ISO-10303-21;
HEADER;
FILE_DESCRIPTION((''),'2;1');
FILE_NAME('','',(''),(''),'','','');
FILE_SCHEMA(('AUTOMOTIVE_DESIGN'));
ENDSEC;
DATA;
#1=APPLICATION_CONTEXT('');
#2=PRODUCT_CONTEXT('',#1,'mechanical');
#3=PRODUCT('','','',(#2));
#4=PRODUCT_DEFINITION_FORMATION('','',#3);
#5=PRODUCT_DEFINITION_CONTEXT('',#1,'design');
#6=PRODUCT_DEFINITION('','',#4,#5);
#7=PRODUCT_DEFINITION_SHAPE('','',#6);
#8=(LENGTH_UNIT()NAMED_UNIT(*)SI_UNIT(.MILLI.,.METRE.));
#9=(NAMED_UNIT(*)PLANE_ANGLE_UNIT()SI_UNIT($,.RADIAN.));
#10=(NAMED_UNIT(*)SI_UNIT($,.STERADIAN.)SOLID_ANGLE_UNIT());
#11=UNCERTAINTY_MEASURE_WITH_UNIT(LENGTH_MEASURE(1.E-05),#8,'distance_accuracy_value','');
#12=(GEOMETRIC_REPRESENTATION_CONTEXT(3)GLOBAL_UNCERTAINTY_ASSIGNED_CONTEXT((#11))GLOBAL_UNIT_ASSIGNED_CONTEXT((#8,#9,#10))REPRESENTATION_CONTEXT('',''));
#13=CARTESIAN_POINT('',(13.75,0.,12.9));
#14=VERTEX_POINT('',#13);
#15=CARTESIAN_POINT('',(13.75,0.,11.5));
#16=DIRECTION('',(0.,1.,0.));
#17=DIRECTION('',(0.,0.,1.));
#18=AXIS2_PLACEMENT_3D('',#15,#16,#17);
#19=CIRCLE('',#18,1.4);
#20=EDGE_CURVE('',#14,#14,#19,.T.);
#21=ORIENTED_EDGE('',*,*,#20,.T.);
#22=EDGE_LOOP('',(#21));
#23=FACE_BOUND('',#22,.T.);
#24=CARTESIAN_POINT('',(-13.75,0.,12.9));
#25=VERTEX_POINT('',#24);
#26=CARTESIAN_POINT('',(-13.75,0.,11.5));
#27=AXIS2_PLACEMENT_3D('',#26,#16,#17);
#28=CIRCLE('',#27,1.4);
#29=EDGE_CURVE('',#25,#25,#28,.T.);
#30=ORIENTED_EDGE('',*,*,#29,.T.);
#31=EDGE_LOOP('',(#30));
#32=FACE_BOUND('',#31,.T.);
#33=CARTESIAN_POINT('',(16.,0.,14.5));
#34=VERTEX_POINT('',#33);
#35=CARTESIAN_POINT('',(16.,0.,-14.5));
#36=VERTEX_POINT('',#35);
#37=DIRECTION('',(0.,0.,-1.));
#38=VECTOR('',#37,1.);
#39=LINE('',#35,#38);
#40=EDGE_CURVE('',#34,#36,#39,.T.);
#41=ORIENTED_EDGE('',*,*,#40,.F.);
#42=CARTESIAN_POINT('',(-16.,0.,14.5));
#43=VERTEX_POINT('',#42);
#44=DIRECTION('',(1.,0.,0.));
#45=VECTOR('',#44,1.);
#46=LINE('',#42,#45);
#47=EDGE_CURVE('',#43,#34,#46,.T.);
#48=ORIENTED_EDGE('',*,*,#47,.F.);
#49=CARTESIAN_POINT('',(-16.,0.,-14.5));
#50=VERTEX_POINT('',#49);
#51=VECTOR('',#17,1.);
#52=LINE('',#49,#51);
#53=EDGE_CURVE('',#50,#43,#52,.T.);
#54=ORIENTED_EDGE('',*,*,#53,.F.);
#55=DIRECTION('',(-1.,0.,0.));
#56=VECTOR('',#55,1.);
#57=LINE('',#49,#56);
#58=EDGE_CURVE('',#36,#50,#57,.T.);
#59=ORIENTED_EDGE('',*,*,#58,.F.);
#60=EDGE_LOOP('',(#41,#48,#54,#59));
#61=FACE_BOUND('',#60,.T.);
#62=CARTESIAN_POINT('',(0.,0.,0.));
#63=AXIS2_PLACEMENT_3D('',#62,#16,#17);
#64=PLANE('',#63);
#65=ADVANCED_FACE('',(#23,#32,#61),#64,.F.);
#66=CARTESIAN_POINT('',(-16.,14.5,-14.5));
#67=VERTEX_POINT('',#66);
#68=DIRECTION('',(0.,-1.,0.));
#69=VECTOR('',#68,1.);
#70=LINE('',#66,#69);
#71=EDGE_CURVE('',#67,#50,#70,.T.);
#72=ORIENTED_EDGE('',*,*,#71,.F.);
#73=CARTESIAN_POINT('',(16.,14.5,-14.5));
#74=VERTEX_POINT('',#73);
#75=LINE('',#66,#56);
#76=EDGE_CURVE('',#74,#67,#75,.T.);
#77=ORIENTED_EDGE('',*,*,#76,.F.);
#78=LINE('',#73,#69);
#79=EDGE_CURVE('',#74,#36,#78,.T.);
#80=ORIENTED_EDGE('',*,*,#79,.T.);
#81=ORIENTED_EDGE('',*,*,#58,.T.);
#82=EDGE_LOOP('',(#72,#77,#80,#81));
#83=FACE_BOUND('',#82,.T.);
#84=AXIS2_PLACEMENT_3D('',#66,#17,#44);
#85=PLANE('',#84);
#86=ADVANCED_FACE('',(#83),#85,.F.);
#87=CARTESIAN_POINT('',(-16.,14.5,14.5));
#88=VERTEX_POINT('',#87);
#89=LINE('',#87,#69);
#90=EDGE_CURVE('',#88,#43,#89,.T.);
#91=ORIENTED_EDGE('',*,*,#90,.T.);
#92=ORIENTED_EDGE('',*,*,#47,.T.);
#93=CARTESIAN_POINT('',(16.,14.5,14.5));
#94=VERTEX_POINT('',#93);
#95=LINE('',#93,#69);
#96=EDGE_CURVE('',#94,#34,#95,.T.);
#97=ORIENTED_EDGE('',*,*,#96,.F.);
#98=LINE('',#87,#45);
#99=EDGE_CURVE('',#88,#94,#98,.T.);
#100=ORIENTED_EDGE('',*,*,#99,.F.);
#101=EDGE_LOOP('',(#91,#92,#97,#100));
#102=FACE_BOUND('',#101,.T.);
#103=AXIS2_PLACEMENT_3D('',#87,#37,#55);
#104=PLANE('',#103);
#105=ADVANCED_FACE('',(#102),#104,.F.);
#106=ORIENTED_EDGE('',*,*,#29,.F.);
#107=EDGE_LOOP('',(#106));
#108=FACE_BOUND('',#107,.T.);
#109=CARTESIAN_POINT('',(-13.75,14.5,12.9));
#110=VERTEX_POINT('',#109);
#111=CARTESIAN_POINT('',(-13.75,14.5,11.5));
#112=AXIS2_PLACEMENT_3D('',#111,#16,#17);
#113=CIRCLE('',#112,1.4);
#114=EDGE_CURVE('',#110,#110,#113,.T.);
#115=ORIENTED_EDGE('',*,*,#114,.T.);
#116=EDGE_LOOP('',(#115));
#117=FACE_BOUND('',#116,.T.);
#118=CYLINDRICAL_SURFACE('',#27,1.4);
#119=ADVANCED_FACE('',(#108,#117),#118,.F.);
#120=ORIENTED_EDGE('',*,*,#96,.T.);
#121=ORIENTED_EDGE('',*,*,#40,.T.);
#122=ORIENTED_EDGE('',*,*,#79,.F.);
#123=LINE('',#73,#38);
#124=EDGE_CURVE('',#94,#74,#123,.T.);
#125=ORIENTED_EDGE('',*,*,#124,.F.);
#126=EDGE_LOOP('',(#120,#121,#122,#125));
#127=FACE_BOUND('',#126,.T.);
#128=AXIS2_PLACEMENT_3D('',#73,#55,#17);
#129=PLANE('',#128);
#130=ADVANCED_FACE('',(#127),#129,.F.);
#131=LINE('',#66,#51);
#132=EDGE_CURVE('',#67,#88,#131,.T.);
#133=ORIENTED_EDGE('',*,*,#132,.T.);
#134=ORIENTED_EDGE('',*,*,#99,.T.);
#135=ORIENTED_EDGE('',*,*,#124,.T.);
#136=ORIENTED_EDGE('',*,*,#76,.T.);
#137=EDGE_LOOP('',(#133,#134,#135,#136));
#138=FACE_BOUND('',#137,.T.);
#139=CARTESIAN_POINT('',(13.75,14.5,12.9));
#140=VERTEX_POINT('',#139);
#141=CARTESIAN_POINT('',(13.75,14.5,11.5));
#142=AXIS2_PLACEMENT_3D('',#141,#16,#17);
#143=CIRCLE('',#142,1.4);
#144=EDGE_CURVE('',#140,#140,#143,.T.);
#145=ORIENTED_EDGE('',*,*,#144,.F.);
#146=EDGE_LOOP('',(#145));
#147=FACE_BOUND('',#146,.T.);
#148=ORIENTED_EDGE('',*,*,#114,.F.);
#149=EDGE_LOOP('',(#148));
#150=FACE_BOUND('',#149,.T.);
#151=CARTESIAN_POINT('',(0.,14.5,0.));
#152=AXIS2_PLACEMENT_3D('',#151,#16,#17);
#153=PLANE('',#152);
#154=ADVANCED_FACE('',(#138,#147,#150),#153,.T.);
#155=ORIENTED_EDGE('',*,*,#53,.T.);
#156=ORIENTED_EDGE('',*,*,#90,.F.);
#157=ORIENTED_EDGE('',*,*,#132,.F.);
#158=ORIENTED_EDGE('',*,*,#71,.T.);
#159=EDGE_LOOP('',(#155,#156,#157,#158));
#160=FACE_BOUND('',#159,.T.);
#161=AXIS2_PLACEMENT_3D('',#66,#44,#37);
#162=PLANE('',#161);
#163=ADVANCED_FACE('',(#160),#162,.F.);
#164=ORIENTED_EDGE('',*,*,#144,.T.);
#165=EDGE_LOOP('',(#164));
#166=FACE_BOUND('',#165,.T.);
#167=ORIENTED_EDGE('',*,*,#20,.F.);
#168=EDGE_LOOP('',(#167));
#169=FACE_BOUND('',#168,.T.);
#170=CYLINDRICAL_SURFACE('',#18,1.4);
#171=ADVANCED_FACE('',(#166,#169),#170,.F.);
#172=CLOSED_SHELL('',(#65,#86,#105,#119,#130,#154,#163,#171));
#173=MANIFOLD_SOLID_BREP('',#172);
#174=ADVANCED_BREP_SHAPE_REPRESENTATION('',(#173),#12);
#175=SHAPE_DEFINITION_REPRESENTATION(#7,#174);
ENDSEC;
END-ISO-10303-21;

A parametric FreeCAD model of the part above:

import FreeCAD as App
import Part
import Sketcher
from FreeCAD import Vector
Q = App.Units.Quantity


def add_polygon(sketch, points):
    """Adds a closed chain of lines whose ends are joined by coincident constraints."""
    first, n = sketch.GeometryCount, len(points)
    for a, b in zip(points, points[1:] + points[:1]):
        sketch.addGeometry(Part.LineSegment(App.Vector(*a, 0), App.Vector(*b, 0)), False)
    for i in range(n):
        sketch.addConstraint(Sketcher.Constraint("Coincident", first + i, 2, first + (i + 1) % n, 1))

doc = App.newDocument("Part")
body = doc.addObject("PartDesign::Body", "Body")

sketch1 = doc.addObject("Sketcher::SketchObject", "Sketch")
body.addObject(sketch1)
sketch1.AttachmentSupport = (doc.XZ_Plane, [""])
sketch1.MapMode = "FlatFace"
add_polygon(sketch1, [(-16, -14), (-16, 14), (16, 14), (16, -14)])
sketch1.addConstraint(Sketcher.Constraint("Vertical", 0))
sketch1.addConstraint(Sketcher.Constraint("Horizontal", 1))
sketch1.addConstraint(Sketcher.Constraint("Vertical", 2))
sketch1.addConstraint(Sketcher.Constraint("Horizontal", 3))
sketch1.addConstraint(Sketcher.Constraint("Symmetric", 0, 2, 2, 2, -1, 1))
sketch1.addConstraint(Sketcher.Constraint("DistanceX", 1, 1, 1, 2, Q("32 mm")))
sketch1.addConstraint(Sketcher.Constraint("DistanceY", 0, 1, 0, 2, Q("29 mm")))
pad1 = doc.addObject("PartDesign::Pad", "Pad")
body.addObject(pad1)
pad1.Profile = sketch1
pad1.Length = 14.5
pad1.Reversed = True

sketch2 = doc.addObject("Sketcher::SketchObject", "Sketch001")
body.addObject(sketch2)
sketch2.AttachmentSupport = (doc.XZ_Plane, [""])
sketch2.MapMode = "FlatFace"
sketch2.AttachmentOffset = App.Placement(Vector(0, 0, -14.5), App.Rotation())
sketch2.addGeometry(Part.Circle(Vector(-13.8, 11.5, 0), Vector(0, 0, 1), 1.4), False)
sketch2.addGeometry(Part.Circle(Vector(13.8, 11.5, 0), Vector(0, 0, 1), 1.4), False)
sketch2.addConstraint(Sketcher.Constraint("Equal", 0, 1))
sketch2.addConstraint(Sketcher.Constraint("Symmetric", 0, 3, 1, 3, -2))
sketch2.addConstraint(Sketcher.Constraint("Diameter", 0, Q("2.8 mm")))
sketch2.addConstraint(Sketcher.Constraint("DistanceY", -1, 1, 0, 3, Q("11.5 mm")))
sketch2.addConstraint(Sketcher.Constraint("DistanceX", 0, 3, 1, 3, Q("27.5 mm")))
pocket1 = doc.addObject("PartDesign::Pocket", "Pocket")
body.addObject(pocket1)
pocket1.Profile = sketch2
pocket1.Type = "ThroughAll"
pocket1.Reversed = True

doc.recompute()
